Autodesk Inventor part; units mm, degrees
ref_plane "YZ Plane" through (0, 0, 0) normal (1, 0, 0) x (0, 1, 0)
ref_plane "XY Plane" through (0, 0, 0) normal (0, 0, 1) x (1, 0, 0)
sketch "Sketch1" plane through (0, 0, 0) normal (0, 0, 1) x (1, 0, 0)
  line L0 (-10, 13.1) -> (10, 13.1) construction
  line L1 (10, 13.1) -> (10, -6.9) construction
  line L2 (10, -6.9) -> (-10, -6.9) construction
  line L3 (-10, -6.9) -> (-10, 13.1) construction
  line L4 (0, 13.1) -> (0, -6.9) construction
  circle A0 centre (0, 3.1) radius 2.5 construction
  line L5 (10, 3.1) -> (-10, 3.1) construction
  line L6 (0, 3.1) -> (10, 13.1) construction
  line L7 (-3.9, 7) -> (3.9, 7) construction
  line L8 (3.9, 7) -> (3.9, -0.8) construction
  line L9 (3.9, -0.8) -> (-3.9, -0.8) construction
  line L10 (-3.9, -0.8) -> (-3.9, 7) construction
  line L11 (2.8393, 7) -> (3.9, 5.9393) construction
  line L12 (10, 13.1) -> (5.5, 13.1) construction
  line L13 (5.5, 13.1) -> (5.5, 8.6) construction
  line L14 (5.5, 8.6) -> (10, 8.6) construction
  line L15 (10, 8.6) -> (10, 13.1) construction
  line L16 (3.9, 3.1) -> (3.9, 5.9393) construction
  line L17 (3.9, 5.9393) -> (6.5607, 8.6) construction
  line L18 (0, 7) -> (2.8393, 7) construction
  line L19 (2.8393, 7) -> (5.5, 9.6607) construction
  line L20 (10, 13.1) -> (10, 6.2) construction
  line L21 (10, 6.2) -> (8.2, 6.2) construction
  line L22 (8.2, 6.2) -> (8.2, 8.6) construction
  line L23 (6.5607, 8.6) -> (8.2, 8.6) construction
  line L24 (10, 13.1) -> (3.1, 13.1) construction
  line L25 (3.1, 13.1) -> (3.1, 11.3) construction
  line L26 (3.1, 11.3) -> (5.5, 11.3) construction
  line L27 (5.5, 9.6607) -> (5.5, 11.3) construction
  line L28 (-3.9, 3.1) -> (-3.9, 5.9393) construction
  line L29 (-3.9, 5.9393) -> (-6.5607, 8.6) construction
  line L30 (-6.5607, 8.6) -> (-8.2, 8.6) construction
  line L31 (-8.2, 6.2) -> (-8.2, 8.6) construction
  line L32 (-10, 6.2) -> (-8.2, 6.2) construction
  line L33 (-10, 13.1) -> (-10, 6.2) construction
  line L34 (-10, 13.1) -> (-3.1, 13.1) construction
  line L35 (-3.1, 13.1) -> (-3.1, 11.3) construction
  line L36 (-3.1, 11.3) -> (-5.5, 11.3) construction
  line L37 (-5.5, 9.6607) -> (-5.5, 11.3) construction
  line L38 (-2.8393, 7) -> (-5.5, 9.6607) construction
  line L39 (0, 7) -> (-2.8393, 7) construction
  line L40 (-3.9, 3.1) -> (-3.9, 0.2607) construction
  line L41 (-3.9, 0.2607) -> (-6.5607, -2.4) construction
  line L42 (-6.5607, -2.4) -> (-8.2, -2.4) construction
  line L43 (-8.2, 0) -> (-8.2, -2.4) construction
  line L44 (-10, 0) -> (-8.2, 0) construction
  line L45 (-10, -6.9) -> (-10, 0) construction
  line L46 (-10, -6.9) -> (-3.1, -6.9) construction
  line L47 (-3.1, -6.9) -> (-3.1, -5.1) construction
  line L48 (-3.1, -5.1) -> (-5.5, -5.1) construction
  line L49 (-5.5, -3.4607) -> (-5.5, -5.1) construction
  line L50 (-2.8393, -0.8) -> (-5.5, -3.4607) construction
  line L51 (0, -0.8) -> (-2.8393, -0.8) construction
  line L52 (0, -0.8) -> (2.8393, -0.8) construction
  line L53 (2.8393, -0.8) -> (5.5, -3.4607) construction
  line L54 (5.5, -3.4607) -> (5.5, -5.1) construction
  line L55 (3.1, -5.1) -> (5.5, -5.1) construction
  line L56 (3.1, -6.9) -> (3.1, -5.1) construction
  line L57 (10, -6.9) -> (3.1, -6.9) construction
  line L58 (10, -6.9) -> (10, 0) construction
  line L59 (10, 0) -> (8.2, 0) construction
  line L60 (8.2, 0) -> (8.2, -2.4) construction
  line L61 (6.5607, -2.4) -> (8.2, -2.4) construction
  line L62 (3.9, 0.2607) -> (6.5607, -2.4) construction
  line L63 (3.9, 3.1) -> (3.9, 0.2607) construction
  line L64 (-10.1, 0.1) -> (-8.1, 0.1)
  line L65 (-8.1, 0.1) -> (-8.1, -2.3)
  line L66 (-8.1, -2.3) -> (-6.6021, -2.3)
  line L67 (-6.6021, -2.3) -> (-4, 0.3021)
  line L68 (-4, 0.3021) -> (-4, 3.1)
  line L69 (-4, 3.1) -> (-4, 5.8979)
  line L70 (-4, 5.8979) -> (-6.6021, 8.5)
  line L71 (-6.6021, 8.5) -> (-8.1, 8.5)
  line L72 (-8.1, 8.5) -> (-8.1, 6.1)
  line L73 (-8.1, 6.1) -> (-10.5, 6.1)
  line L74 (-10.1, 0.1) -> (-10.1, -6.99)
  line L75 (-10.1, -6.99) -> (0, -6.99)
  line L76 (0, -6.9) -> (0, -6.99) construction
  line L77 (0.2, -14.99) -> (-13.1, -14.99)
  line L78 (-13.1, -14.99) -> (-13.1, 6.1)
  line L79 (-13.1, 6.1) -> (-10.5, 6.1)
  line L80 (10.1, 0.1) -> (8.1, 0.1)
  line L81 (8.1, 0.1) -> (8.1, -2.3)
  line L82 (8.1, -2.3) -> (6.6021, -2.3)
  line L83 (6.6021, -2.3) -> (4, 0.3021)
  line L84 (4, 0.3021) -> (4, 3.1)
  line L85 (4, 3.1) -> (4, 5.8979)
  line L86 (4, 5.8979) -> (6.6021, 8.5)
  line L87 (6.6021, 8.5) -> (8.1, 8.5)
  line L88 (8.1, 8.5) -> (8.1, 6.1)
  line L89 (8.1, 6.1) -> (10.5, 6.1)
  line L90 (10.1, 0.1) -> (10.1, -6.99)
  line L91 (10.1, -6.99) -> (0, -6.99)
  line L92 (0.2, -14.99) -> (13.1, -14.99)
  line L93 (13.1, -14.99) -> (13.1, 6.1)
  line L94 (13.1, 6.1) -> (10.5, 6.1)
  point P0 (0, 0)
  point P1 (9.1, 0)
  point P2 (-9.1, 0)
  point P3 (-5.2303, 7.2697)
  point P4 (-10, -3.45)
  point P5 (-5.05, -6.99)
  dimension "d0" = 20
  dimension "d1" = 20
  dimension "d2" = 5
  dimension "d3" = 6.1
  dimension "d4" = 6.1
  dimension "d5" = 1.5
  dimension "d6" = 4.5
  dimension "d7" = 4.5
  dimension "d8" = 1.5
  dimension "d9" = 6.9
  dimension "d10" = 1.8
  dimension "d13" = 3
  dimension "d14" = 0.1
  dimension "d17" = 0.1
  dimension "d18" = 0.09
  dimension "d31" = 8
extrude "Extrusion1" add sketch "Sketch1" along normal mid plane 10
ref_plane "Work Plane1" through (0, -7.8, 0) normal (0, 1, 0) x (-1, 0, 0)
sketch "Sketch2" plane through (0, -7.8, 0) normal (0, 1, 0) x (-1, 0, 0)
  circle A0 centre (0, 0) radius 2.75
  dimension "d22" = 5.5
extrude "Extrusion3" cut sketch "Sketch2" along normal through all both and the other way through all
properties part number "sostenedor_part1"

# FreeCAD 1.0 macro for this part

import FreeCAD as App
import Part
import Sketcher

V = App.Vector
Q = App.Units.Quantity

doc = App.newDocument("Part")
body = doc.addObject("PartDesign::Body", "Body")

# Sketch on XY plane
sketch1 = body.newObject("Sketcher::SketchObject", "Sketch")
sketch1.AttachmentSupport = (doc.getObject("XY_Plane"), [""])
sketch1.MapMode = "FlatFace"
sketch1.addGeometry([
    Part.LineSegment(V(-10.1, -7, 0), V(-10.1, 0.1, 0)),  # 0
    Part.LineSegment(V(-10.1, 0.1, 0), V(-8.1, 0.1, 0)),  # 1
    Part.LineSegment(V(-8.1, 0.1, 0), V(-8.1, -2.3, 0)),  # 2
    Part.LineSegment(V(-8.1, -2.3, 0), V(-6.6, -2.3, 0)),  # 3
    Part.LineSegment(V(-6.6, -2.3, 0), V(-4, 0.3, 0)),  # 4
    Part.LineSegment(V(-4, 0.3, 0), V(-4, 5.9, 0)),  # 5
    Part.LineSegment(V(-4, 5.9, 0), V(-6.6, 8.5, 0)),  # 6
    Part.LineSegment(V(-6.6, 8.5, 0), V(-8.1, 8.5, 0)),  # 7
    Part.LineSegment(V(-8.1, 8.5, 0), V(-8.1, 6.1, 0)),  # 8
    Part.LineSegment(V(-8.1, 6.1, 0), V(-13.1, 6.1, 0)),  # 9
    Part.LineSegment(V(-13.1, 6.1, 0), V(-13.1, -15, 0)),  # 10
    Part.LineSegment(V(-13.1, -15, 0), V(13.1, -15, 0)),  # 11
    Part.LineSegment(V(13.1, -15, 0), V(13.1, 6.1, 0)),  # 12
    Part.LineSegment(V(13.1, 6.1, 0), V(8.1, 6.1, 0)),  # 13
    Part.LineSegment(V(8.1, 6.1, 0), V(8.1, 8.5, 0)),  # 14
    Part.LineSegment(V(8.1, 8.5, 0), V(6.6, 8.5, 0)),  # 15
    Part.LineSegment(V(6.6, 8.5, 0), V(4, 5.9, 0)),  # 16
    Part.LineSegment(V(4, 5.9, 0), V(4, 0.3, 0)),  # 17
    Part.LineSegment(V(4, 0.3, 0), V(6.6, -2.3, 0)),  # 18
    Part.LineSegment(V(6.6, -2.3, 0), V(8.1, -2.3, 0)),  # 19
    Part.LineSegment(V(8.1, -2.3, 0), V(8.1, 0.1, 0)),  # 20
    Part.LineSegment(V(8.1, 0.1, 0), V(10.1, 0.1, 0)),  # 21
    Part.LineSegment(V(10.1, 0.1, 0), V(10.1, -7, 0)),  # 22
    Part.LineSegment(V(10.1, -7, 0), V(-10.1, -7, 0)),  # 23
], False)
sketch1.addConstraint([
    Sketcher.Constraint("Coincident", 0, 2, 1, 1),
    Sketcher.Constraint("Coincident", 1, 2, 2, 1),
    Sketcher.Constraint("Coincident", 2, 2, 3, 1),
    Sketcher.Constraint("Coincident", 3, 2, 4, 1),
    Sketcher.Constraint("Coincident", 4, 2, 5, 1),
    Sketcher.Constraint("Coincident", 5, 2, 6, 1),
    Sketcher.Constraint("Coincident", 6, 2, 7, 1),
    Sketcher.Constraint("Coincident", 7, 2, 8, 1),
    Sketcher.Constraint("Coincident", 8, 2, 9, 1),
    Sketcher.Constraint("Coincident", 9, 2, 10, 1),
    Sketcher.Constraint("Coincident", 10, 2, 11, 1),
    Sketcher.Constraint("Coincident", 11, 2, 12, 1),
    Sketcher.Constraint("Coincident", 12, 2, 13, 1),
    Sketcher.Constraint("Coincident", 13, 2, 14, 1),
    Sketcher.Constraint("Coincident", 14, 2, 15, 1),
    Sketcher.Constraint("Coincident", 15, 2, 16, 1),
    Sketcher.Constraint("Coincident", 16, 2, 17, 1),
    Sketcher.Constraint("Coincident", 17, 2, 18, 1),
    Sketcher.Constraint("Coincident", 18, 2, 19, 1),
    Sketcher.Constraint("Coincident", 19, 2, 20, 1),
    Sketcher.Constraint("Coincident", 20, 2, 21, 1),
    Sketcher.Constraint("Coincident", 21, 2, 22, 1),
    Sketcher.Constraint("Coincident", 22, 2, 23, 1),
    Sketcher.Constraint("Coincident", 23, 2, 0, 1),
    Sketcher.Constraint("Vertical", 0),
    Sketcher.Constraint("Horizontal", 1),
    Sketcher.Constraint("Vertical", 2),
    Sketcher.Constraint("Horizontal", 3),
    Sketcher.Constraint("Vertical", 5),
    Sketcher.Constraint("Horizontal", 7),
    Sketcher.Constraint("Vertical", 8),
    Sketcher.Constraint("Horizontal", 9),
    Sketcher.Constraint("Vertical", 10),
    Sketcher.Constraint("Horizontal", 11),
    Sketcher.Constraint("Vertical", 12),
    Sketcher.Constraint("Horizontal", 13),
    Sketcher.Constraint("Vertical", 14),
    Sketcher.Constraint("Horizontal", 15),
    Sketcher.Constraint("Vertical", 17),
    Sketcher.Constraint("Horizontal", 19),
    Sketcher.Constraint("Vertical", 20),
    Sketcher.Constraint("Horizontal", 21),
    Sketcher.Constraint("Vertical", 22),
    Sketcher.Constraint("Horizontal", 23),
    Sketcher.Constraint("Symmetric", 9, 2, 12, 2, -2),
    Sketcher.Constraint("Symmetric", 7, 2, 14, 2, -2),
    Sketcher.Constraint("Symmetric", 5, 2, 16, 2, -2),
    Sketcher.Constraint("Symmetric", 3, 2, 18, 2, -2),
    Sketcher.Constraint("Symmetric", 1, 2, 20, 2, -2),
    Sketcher.Constraint("Perpendicular", 4, 6),
    Sketcher.Constraint("Perpendicular", 6, 16),
    Sketcher.Constraint("Perpendicular", 16, 18),
    Sketcher.Constraint("Horizontal", 4, 2, 17, 2),
    Sketcher.Constraint("Vertical", 3, 2, 6, 2),
    Sketcher.Constraint("Vertical", 2, 2, 7, 2),
    Sketcher.Constraint("Equal", 1, 21),
    Sketcher.Constraint("Equal", 2, 8),
    Sketcher.Constraint("DistanceX", 9, 2, 9, 1, Q("5 mm")),
    Sketcher.Constraint("DistanceX", 9, 2, 0, 2, Q("3 mm")),
    Sketcher.Constraint("DistanceX", 5, 2, 16, 2, Q("8 mm")),
    Sketcher.Constraint("DistanceY", 11, 2, 22, 2, Q("8 mm")),
    Sketcher.Constraint("DistanceY", -1, 1, 0, 2, Q("0.1 mm")),
    Sketcher.Constraint("DistanceY", -1, 1, 8, 2, Q("6.1 mm")),
    Sketcher.Constraint("DistanceX", 0, 2, 4, 2, Q("6.1 mm")),
    Sketcher.Constraint("DistanceY", 2, 2, 2, 1, Q("2.4 mm")),
    Sketcher.Constraint("DistanceY", 0, 1, 0, 2, Q("7.09 mm")),
    Sketcher.Constraint("Distance", 4, Q("3.68 mm")),
])
pad1 = body.newObject("PartDesign::Pad", "Pad")
pad1.Profile = sketch1
pad1.Length = 10
pad1.Midplane = True

# Sketch on XZ plane
sketch2 = body.newObject("Sketcher::SketchObject", "Sketch001")
sketch2.AttachmentSupport = (doc.getObject("XZ_Plane"), [""])
sketch2.MapMode = "FlatFace"
sketch2.AttachmentOffset = App.Placement(V(0, 0, 7.8), App.Rotation())
sketch2.addGeometry(Part.Circle(V(0, 0, 0), V(0, 0, 1), 2.8), False)
sketch2.addConstraint([
    Sketcher.Constraint("Coincident", 0, 3, -1, 1),
    Sketcher.Constraint("Diameter", 0, Q("5.5 mm")),
])
pocket1 = body.newObject("PartDesign::Pocket", "Pocket")
pocket1.Profile = sketch2
pocket1.Type = "ThroughAll"
pocket1.Midplane = True

doc.recompute()
